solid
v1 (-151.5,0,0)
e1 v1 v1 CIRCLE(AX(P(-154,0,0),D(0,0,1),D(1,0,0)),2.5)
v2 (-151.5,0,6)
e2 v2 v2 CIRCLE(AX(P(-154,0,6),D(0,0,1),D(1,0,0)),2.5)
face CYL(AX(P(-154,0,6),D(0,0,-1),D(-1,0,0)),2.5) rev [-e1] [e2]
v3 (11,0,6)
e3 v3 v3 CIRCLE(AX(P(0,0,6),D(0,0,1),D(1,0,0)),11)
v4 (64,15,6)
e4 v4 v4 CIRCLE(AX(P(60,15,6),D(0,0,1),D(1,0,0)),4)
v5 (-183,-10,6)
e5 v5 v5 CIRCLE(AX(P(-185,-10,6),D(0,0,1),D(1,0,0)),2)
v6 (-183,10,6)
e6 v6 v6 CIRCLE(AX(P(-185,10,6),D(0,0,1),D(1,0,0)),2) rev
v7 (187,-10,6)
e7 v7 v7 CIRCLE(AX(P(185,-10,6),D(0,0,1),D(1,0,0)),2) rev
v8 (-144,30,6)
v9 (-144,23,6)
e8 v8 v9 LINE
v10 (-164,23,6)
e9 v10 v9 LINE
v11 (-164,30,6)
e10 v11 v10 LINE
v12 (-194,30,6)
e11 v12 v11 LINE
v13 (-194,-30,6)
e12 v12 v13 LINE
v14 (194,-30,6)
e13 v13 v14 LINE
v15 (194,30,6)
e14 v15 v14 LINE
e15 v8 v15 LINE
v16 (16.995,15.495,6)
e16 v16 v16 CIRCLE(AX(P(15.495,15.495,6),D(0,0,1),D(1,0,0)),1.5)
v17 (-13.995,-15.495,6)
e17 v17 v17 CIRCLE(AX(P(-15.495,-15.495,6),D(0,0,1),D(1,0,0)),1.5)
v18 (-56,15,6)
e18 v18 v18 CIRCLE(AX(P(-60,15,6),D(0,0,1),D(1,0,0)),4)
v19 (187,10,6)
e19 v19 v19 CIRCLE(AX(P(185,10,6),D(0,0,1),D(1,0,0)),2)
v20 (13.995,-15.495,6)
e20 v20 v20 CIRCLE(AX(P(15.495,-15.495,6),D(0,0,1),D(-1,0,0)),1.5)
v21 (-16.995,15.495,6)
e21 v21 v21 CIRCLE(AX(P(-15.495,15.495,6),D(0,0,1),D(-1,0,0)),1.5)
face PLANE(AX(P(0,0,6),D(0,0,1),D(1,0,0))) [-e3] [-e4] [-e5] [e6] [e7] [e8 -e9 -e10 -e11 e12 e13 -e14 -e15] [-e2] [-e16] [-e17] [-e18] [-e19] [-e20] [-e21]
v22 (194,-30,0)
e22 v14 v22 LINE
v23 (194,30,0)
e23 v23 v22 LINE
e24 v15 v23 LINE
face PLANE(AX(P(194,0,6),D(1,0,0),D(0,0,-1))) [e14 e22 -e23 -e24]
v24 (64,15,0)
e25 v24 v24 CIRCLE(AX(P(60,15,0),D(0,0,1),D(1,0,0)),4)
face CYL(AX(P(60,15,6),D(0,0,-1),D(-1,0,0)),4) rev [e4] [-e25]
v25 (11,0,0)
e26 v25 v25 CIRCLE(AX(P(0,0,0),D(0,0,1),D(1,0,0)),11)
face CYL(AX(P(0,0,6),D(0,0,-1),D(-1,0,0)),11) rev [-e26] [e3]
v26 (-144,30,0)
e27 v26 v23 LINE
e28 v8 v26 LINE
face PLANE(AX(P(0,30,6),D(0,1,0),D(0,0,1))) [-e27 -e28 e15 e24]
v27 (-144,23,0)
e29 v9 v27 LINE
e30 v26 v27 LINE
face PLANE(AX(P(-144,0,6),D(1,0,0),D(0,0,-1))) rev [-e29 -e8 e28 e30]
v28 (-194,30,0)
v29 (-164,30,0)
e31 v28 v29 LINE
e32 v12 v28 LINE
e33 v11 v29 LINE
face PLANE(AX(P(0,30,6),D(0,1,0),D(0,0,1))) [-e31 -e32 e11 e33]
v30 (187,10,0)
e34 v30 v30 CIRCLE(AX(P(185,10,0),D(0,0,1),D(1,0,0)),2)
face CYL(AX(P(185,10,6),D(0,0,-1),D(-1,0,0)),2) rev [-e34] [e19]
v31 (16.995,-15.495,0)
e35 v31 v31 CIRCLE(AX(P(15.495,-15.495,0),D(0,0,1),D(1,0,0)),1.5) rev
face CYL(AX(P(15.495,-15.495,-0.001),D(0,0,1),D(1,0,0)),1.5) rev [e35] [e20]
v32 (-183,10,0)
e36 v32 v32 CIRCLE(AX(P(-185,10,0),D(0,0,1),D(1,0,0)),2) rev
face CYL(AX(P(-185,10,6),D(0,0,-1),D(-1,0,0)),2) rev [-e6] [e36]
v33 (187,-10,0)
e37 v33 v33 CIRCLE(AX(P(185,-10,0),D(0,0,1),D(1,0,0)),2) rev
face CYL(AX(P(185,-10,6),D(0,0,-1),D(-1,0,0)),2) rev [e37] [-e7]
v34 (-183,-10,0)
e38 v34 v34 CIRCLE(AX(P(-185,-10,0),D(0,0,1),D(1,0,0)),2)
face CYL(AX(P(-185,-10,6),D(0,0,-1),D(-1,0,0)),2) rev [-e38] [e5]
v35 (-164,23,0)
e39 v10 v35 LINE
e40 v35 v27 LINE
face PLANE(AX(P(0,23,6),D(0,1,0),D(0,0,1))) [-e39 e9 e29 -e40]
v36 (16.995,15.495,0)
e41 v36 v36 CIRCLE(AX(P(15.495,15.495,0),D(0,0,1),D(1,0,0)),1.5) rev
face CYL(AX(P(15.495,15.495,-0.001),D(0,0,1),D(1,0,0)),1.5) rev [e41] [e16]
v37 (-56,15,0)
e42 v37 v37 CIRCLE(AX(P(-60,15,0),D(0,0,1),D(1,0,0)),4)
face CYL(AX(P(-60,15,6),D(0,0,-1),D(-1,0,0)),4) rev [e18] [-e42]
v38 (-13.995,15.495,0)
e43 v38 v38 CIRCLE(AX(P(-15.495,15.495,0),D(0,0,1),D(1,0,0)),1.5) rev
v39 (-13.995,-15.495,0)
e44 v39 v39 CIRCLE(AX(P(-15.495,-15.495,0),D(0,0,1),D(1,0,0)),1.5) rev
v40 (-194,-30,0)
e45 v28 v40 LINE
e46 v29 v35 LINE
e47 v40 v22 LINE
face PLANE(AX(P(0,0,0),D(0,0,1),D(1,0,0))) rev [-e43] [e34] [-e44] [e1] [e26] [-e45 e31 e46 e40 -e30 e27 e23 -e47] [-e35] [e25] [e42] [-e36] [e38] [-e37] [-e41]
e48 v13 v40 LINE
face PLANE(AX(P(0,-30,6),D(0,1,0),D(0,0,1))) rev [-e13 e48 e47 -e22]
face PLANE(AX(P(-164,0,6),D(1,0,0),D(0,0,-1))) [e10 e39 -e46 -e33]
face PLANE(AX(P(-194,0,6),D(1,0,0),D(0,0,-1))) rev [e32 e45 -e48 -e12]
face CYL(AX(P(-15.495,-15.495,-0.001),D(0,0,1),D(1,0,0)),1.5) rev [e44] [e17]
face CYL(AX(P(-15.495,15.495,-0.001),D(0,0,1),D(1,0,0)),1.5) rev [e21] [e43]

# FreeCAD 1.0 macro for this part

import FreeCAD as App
import Part
import Sketcher

V = App.Vector


def add_polygon(sketch, points):
    """Adds a closed chain of lines whose ends are joined by coincident constraints."""
    first, n = sketch.GeometryCount, len(points)
    for a, b in zip(points, points[1:] + points[:1]):
        sketch.addGeometry(Part.LineSegment(App.Vector(*a, 0), App.Vector(*b, 0)), False)
    for i in range(n):
        sketch.addConstraint(Sketcher.Constraint("Coincident", first + i, 2, first + (i + 1) % n, 1))

doc = App.newDocument("Part")
params = doc.addObject("Spreadsheet::Sheet", "Params")
for row, (alias, value) in enumerate([
    ("sketch1_diameter", "4 mm"),
    ("sketch1_diameter2", "5 mm"),
    ("sketch1_diameter3", "22 mm"),
    ("sketch1_diameter4", "8 mm"),
    ("sketch1_width", "388 mm"),
    ("pad1_length", "6 mm"),
    ("sketch2_diameter", "3 mm"),
    ("sketch3_diameter", "3 mm"),
    ("sketch4_diameter", "3 mm"),
    ("sketch5_diameter", "3 mm"),
], start=1):
    params.set(f"A{row}", alias)
    params.set(f"B{row}", "=" + value)
    params.setAlias(f"B{row}", alias)

body = doc.addObject("PartDesign::Body", "Body")

# Sketch on XY plane
sketch1 = doc.addObject("Sketcher::SketchObject", "Sketch")
body.addObject(sketch1)
sketch1.AttachmentSupport = (doc.XY_Plane, [""])
sketch1.MapMode = "FlatFace"
add_polygon(sketch1, [(-194, 30), (-194, -30), (194, -30), (194, 30), (-144, 30), (-144, 23), (-164, 23), (-164, 30)])  # lines 0-7
sketch1.addGeometry(Part.Circle(V(-185, -10, 0), V(0, 0, 1), 2), False)  # 8
sketch1.addGeometry(Part.Circle(V(-154, 0, 0), V(0, 0, 1), 2.5), False)  # 9
sketch1.addGeometry(Part.Circle(V(0, 0, 0), V(0, 0, 1), 11), False)  # 10
sketch1.addGeometry(Part.Circle(V(185, -10, 0), V(0, 0, 1), 2), False)  # 11
sketch1.addGeometry(Part.Circle(V(-185, 10, 0), V(0, 0, 1), 2), False)  # 12
sketch1.addGeometry(Part.Circle(V(-60, 15, 0), V(0, 0, 1), 4), False)  # 13
sketch1.addGeometry(Part.Circle(V(185, 10, 0), V(0, 0, 1), 2), False)  # 14
sketch1.addGeometry(Part.Circle(V(60, 15, 0), V(0, 0, 1), 4), False)  # 15
sketch1.addConstraint([
    Sketcher.Constraint("Vertical", 0),
    Sketcher.Constraint("Horizontal", 1),
    Sketcher.Constraint("Vertical", 2),
    Sketcher.Constraint("Horizontal", 3),
    Sketcher.Constraint("Vertical", 4),
    Sketcher.Constraint("Horizontal", 5),
    Sketcher.Constraint("Vertical", 6),
    Sketcher.Constraint("Horizontal", 7),
    Sketcher.Constraint("Coincident", 10, 3, -1, 1),
    Sketcher.Constraint("Equal", 8, 11),
    Sketcher.Constraint("Equal", 11, 12),
    Sketcher.Constraint("Equal", 12, 14),
    Sketcher.Constraint("Equal", 13, 15),
    Sketcher.Constraint("Symmetric", 11, 3, 12, 3, -1, 1),
    Sketcher.Constraint("Symmetric", 8, 3, 14, 3, -1, 1),
    Sketcher.Constraint("Symmetric", 0, 2, 2, 2, -1, 1),
    Sketcher.Constraint("Symmetric", 8, 3, 11, 3, -2),
    Sketcher.Constraint("Symmetric", 13, 3, 15, 3, -2),
    Sketcher.Constraint("PointOnObject", 9, 3, -1),
    Sketcher.Constraint("Horizontal", 3, 2, 6, 2),
    Sketcher.Constraint("Diameter", 8, 4.0),
    Sketcher.Constraint("Diameter", 9, 5.0),
    Sketcher.Constraint("Diameter", 10, 22.0),
    Sketcher.Constraint("Diameter", 13, 8.0),
    Sketcher.Constraint("DistanceX", 1, 1, 1, 2, 388.0),
    Sketcher.Constraint("DistanceX", 3, 2, 3, 1, 338.0),
    Sketcher.Constraint("DistanceX", 5, 2, 5, 1, 20.0),
    Sketcher.Constraint("DistanceY", 0, 2, 0, 1, 60.0),
    Sketcher.Constraint("DistanceY", 4, 2, 4, 1, 7.0),
    Sketcher.Constraint("DistanceX", 8, 3, -1, 1, 185.0),
    Sketcher.Constraint("DistanceY", 8, 3, -1, 1, 10.0),
    Sketcher.Constraint("DistanceX", 9, 3, -1, 1, 154.0),
    Sketcher.Constraint("DistanceX", 13, 3, -1, 1, 60.0),
    Sketcher.Constraint("DistanceY", -1, 1, 13, 3, 15.0),
])
sketch1.setExpression("Constraints[28]", "Params.sketch1_diameter")
sketch1.setExpression("Constraints[29]", "Params.sketch1_diameter2")
sketch1.setExpression("Constraints[30]", "Params.sketch1_diameter3")
sketch1.setExpression("Constraints[31]", "Params.sketch1_diameter4")
sketch1.setExpression("Constraints[32]", "Params.sketch1_width")
pad1 = doc.addObject("PartDesign::Pad", "Pad")
body.addObject(pad1)
pad1.Profile = sketch1
pad1.setExpression("Length", "Params.pad1_length")

# Sketch on XY plane
sketch2 = doc.addObject("Sketcher::SketchObject", "Sketch001")
body.addObject(sketch2)
sketch2.AttachmentSupport = (doc.XY_Plane, [""])
sketch2.MapMode = "FlatFace"
sketch2.AttachmentOffset = App.Placement(V(0, 0, 6), App.Rotation())
sketch2.addGeometry(Part.Circle(V(15.495, 15.495, 0), V(0, 0, 1), 1.5), False)
sketch2.addConstraint([
    Sketcher.Constraint("Diameter", 0, 3.0),
    Sketcher.Constraint("DistanceX", -1, 1, 0, 3, 15.495),
    Sketcher.Constraint("DistanceY", -1, 1, 0, 3, 15.495),
])
sketch2.setExpression("Constraints[0]", "Params.sketch2_diameter")
pocket1 = doc.addObject("PartDesign::Pocket", "Pocket")
body.addObject(pocket1)
pocket1.Profile = sketch2
pocket1.Type = "UpToFirst"

# Sketch on XY plane
sketch3 = doc.addObject("Sketcher::SketchObject", "Sketch002")
body.addObject(sketch3)
sketch3.AttachmentSupport = (doc.XY_Plane, [""])
sketch3.MapMode = "FlatFace"
sketch3.AttachmentOffset = App.Placement(V(0, 0, 6), App.Rotation())
sketch3.addGeometry(Part.Circle(V(-15.495, 15.495, 0), V(0, 0, 1), 1.5), False)
sketch3.addConstraint([
    Sketcher.Constraint("Diameter", 0, 3.0),
    Sketcher.Constraint("DistanceX", 0, 3, -1, 1, 15.495),
    Sketcher.Constraint("DistanceY", -1, 1, 0, 3, 15.495),
])
sketch3.setExpression("Constraints[0]", "Params.sketch3_diameter")
pocket2 = doc.addObject("PartDesign::Pocket", "Pocket001")
body.addObject(pocket2)
pocket2.Profile = sketch3
pocket2.Type = "UpToFirst"

# Sketch on XY plane
sketch4 = doc.addObject("Sketcher::SketchObject", "Sketch003")
body.addObject(sketch4)
sketch4.AttachmentSupport = (doc.XY_Plane, [""])
sketch4.MapMode = "FlatFace"
sketch4.AttachmentOffset = App.Placement(V(0, 0, 6), App.Rotation())
sketch4.addGeometry(Part.Circle(V(15.495, -15.495, 0), V(0, 0, 1), 1.5), False)
sketch4.addConstraint([
    Sketcher.Constraint("Diameter", 0, 3.0),
    Sketcher.Constraint("DistanceX", -1, 1, 0, 3, 15.495),
    Sketcher.Constraint("DistanceY", 0, 3, -1, 1, 15.495),
])
sketch4.setExpression("Constraints[0]", "Params.sketch4_diameter")
pocket3 = doc.addObject("PartDesign::Pocket", "Pocket002")
body.addObject(pocket3)
pocket3.Profile = sketch4
pocket3.Type = "UpToFirst"

# Sketch on XY plane
sketch5 = doc.addObject("Sketcher::SketchObject", "Sketch004")
body.addObject(sketch5)
sketch5.AttachmentSupport = (doc.XY_Plane, [""])
sketch5.MapMode = "FlatFace"
sketch5.AttachmentOffset = App.Placement(V(0, 0, 6), App.Rotation())
sketch5.addGeometry(Part.Circle(V(-15.495, -15.495, 0), V(0, 0, 1), 1.5), False)
sketch5.addConstraint([
    Sketcher.Constraint("Diameter", 0, 3.0),
    Sketcher.Constraint("DistanceX", 0, 3, -1, 1, 15.495),
    Sketcher.Constraint("DistanceY", 0, 3, -1, 1, 15.495),
])
sketch5.setExpression("Constraints[0]", "Params.sketch5_diameter")
pocket4 = doc.addObject("PartDesign::Pocket", "Pocket003")
body.addObject(pocket4)
pocket4.Profile = sketch5
pocket4.Type = "UpToFirst"

doc.recompute()
